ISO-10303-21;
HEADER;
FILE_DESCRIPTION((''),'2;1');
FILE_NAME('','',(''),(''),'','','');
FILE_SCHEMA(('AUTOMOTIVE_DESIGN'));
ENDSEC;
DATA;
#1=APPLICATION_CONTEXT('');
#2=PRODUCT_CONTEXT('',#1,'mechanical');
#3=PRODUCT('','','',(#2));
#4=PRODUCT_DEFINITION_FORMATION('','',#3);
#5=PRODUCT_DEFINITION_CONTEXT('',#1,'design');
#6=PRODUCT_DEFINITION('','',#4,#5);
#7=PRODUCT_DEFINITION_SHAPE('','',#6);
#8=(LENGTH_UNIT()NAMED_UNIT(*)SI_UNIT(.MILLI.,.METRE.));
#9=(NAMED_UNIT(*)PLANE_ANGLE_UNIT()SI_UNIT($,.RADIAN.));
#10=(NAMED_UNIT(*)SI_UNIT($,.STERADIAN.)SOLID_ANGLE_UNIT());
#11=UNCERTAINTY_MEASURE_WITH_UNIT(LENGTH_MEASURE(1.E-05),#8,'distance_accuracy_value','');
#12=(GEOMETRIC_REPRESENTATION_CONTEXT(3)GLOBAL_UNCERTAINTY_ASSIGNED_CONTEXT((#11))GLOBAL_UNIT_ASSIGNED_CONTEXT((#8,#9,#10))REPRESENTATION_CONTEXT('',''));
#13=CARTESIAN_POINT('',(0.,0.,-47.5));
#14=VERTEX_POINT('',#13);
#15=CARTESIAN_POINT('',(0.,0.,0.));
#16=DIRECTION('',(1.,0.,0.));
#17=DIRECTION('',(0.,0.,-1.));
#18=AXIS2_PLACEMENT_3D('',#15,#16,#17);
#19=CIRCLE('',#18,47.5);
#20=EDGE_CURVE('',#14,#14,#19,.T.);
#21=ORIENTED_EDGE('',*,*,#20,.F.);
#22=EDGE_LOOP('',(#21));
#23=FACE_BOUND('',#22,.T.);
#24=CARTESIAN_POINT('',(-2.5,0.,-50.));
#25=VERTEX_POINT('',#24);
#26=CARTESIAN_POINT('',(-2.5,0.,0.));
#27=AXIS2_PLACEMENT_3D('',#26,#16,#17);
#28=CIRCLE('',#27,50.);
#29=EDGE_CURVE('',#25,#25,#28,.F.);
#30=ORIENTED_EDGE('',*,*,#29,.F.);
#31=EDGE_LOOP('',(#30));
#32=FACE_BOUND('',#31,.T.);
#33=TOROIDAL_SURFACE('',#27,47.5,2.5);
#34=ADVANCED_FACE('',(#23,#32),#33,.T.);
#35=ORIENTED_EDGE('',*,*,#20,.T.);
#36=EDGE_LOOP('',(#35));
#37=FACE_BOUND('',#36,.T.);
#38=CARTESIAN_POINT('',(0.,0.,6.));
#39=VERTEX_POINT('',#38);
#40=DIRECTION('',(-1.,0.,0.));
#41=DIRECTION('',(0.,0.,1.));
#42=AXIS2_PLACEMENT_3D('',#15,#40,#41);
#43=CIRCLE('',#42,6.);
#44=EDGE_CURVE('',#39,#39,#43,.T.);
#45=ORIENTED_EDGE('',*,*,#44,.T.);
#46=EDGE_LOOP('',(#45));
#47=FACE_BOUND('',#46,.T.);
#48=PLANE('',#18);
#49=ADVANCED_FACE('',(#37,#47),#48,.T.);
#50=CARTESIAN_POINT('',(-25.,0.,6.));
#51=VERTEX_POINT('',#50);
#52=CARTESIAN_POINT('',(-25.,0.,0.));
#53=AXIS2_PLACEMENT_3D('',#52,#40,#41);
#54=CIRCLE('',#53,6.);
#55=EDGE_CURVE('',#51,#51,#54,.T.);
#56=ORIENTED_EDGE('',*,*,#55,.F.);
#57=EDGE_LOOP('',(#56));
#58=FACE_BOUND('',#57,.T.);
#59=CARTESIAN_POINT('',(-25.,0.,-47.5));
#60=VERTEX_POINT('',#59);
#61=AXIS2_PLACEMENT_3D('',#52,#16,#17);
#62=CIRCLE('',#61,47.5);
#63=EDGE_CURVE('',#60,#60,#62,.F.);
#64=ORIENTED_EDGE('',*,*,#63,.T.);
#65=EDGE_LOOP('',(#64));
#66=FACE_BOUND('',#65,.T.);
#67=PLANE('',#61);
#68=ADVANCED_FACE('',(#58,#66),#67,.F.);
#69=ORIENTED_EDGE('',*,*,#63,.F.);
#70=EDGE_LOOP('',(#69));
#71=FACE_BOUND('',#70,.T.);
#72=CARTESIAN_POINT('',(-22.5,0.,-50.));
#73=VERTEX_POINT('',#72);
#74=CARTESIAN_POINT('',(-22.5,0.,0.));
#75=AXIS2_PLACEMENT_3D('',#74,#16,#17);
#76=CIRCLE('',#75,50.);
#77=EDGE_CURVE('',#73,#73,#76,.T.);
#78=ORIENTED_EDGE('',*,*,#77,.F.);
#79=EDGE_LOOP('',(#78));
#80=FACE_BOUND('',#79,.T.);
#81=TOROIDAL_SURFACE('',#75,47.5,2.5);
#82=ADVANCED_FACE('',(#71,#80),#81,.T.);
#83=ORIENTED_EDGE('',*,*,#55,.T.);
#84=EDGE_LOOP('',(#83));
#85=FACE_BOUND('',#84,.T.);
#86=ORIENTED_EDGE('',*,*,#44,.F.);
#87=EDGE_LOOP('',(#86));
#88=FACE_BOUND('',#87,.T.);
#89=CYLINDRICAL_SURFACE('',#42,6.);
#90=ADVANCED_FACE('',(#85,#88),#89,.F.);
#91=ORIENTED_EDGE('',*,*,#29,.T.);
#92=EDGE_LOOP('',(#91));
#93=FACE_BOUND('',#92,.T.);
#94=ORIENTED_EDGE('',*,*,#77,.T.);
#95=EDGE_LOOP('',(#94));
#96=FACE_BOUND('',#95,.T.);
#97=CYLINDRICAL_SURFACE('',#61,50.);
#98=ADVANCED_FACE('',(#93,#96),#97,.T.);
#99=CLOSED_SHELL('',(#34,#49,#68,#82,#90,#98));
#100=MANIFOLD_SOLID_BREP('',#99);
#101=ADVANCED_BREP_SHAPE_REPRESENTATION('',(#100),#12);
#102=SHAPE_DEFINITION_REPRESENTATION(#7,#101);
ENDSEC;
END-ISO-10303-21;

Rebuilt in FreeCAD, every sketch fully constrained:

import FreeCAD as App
import Part
import Sketcher

V = App.Vector
Q = App.Units.Quantity


def edges_at(feature, points):
    """Names of the edges that pass closest to the given points."""
    edges = feature.Shape.Edges
    near = lambda p: min(range(len(edges)), key=lambda i: edges[i].distToShape(Part.Vertex(*p))[0])
    return sorted({f"Edge{near(p) + 1}" for p in points})

doc = App.newDocument("Part")
params = doc.addObject("Spreadsheet::Sheet", "Params")
for row, (alias, value) in enumerate([
    ("sketch1_diameter", "100 mm"),
    ("pad1_length", "25 mm"),
    ("fillet_radius", "2.5 mm"),
    ("sketch2_diameter", "12 mm"),
    ("pocket1_length", "25 mm"),
], start=1):
    params.set(f"A{row}", alias)
    params.set(f"B{row}", "=" + value)
    params.setAlias(f"B{row}", alias)

body = doc.addObject("PartDesign::Body", "Body")

# Sketch on YZ plane
sketch1 = doc.addObject("Sketcher::SketchObject", "Sketch")
body.addObject(sketch1)
sketch1.AttachmentSupport = (doc.YZ_Plane, [""])
sketch1.MapMode = "FlatFace"
sketch1.addGeometry(Part.Circle(V(0, 0, 0), V(0, 0, 1), 50), False)
sketch1.addConstraint([
    Sketcher.Constraint("Coincident", 0, 3, -1, 1),
    Sketcher.Constraint("Diameter", 0, Q("100 mm")),
])
sketch1.setExpression("Constraints[1]", "Params.sketch1_diameter")
pad1 = doc.addObject("PartDesign::Pad", "Pad")
body.addObject(pad1)
pad1.Profile = sketch1
pad1.setExpression("Length", "Params.pad1_length")
pad1.Reversed = True
doc.recompute()

fillet = doc.addObject("PartDesign::Fillet", "Fillet")
body.addObject(fillet)
fillet.Base = (pad1, edges_at(pad1, [(0, 0, 50), (-25, 0, 50)]))
fillet.setExpression("Radius", "Params.fillet_radius")

# Sketch on YZ plane
sketch2 = doc.addObject("Sketcher::SketchObject", "Sketch001")
body.addObject(sketch2)
sketch2.AttachmentSupport = (doc.YZ_Plane, [""])
sketch2.MapMode = "FlatFace"
sketch2.AttachmentOffset = App.Placement(V(0, 0, -25), App.Rotation())
sketch2.addGeometry(Part.Circle(V(0, 0, 0), V(0, 0, 1), 6), False)
sketch2.addConstraint([
    Sketcher.Constraint("Coincident", 0, 3, -1, 1),
    Sketcher.Constraint("Diameter", 0, Q("12 mm")),
])
sketch2.setExpression("Constraints[1]", "Params.sketch2_diameter")
pocket1 = doc.addObject("PartDesign::Pocket", "Pocket")
body.addObject(pocket1)
pocket1.Profile = sketch2
pocket1.setExpression("Length", "Params.pocket1_length")
pocket1.Reversed = True

doc.recompute()
